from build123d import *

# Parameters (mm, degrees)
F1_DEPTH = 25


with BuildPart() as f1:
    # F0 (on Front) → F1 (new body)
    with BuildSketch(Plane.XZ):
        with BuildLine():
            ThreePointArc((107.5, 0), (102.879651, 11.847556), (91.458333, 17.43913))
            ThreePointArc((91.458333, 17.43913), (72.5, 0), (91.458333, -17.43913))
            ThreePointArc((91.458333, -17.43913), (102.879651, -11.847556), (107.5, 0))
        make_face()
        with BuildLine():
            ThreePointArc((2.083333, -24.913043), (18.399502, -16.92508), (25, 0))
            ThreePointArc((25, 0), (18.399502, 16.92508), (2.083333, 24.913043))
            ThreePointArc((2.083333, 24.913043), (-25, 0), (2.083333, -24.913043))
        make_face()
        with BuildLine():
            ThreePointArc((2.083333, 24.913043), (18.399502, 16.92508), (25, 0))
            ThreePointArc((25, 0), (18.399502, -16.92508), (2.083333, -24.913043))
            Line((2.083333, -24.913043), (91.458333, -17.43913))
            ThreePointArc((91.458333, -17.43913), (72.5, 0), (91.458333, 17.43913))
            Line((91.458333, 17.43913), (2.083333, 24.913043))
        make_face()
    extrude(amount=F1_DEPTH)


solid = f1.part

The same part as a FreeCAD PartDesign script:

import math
import FreeCAD as App
import Part
import Sketcher

V = App.Vector

doc = App.newDocument("Part")
body = doc.addObject("PartDesign::Body", "Body")

sketch1 = body.newObject("Sketcher::SketchObject", "Sketch")
sketch1.AttachmentSupport = (doc.getObject("XZ_Plane"), [""])
sketch1.MapMode = "FlatFace"
sketch1.addGeometry(Part.ArcOfCircle(Part.Circle(V(90, 0, 0), V(0, 0, 1), 18), math.radians(0), math.radians(85)), False)
sketch1.addGeometry(Part.LineSegment(V(91, 17, 0), V(2, 25, 0)), False)
sketch1.addGeometry(Part.ArcOfCircle(Part.Circle(V(0, 0, 0), V(0, 0, 1), 25), math.radians(85), math.radians(275)), False)
sketch1.addGeometry(Part.LineSegment(V(2, -25, 0), V(91, -17, 0)), False)
sketch1.addGeometry(Part.ArcOfCircle(Part.Circle(V(90, 0, 0), V(0, 0, 1), 18), math.radians(-85), math.radians(0)), False)
sketch1.addConstraint(Sketcher.Constraint("Tangent", 0, 2, 1, 1))
sketch1.addConstraint(Sketcher.Constraint("Tangent", 1, 2, 2, 1))
sketch1.addConstraint(Sketcher.Constraint("Tangent", 2, 2, 3, 1))
sketch1.addConstraint(Sketcher.Constraint("Tangent", 3, 2, 4, 1))
sketch1.addConstraint(Sketcher.Constraint("Tangent", 4, 2, 0, 1))
sketch1.addConstraint(Sketcher.Constraint("Coincident", 2, 3, -1, 1))
sketch1.addConstraint(Sketcher.Constraint("Equal", 0, 4))
sketch1.addConstraint(Sketcher.Constraint("PointOnObject", 0, 3, -1))
sketch1.addConstraint(Sketcher.Constraint("PointOnObject", 4, 2, -1))
sketch1.addConstraint(Sketcher.Constraint("Radius", 2, 25.0))
sketch1.addConstraint(Sketcher.Constraint("Radius", 0, 17.5))
sketch1.addConstraint(Sketcher.Constraint("DistanceX", -1, 1, 0, 3, 90.0))
pad1 = body.newObject("PartDesign::Pad", "Pad")
pad1.Profile = sketch1
pad1.Length = 25

doc.recompute()
